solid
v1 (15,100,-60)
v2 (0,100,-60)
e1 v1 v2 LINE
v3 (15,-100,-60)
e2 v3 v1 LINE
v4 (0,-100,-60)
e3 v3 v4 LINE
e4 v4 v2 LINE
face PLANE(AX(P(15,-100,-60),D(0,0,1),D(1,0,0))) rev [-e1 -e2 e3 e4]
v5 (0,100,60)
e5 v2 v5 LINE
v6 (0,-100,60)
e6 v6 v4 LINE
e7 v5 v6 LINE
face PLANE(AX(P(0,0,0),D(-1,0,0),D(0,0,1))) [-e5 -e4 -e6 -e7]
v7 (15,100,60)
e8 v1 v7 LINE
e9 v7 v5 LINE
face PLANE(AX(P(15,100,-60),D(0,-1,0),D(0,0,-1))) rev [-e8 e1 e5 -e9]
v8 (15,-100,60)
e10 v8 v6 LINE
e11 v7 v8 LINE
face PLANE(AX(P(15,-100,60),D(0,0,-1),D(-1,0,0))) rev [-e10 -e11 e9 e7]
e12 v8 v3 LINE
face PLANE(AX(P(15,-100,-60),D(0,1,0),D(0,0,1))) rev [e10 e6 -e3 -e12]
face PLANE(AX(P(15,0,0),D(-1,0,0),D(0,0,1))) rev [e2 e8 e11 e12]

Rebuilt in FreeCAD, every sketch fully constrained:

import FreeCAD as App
import Part
import Sketcher

V = App.Vector
Q = App.Units.Quantity


def add_polygon(sketch, points):
    """Adds a closed chain of lines whose ends are joined by coincident constraints."""
    first, n = sketch.GeometryCount, len(points)
    for a, b in zip(points, points[1:] + points[:1]):
        sketch.addGeometry(Part.LineSegment(App.Vector(*a, 0), App.Vector(*b, 0)), False)
    for i in range(n):
        sketch.addConstraint(Sketcher.Constraint("Coincident", first + i, 2, first + (i + 1) % n, 1))

doc = App.newDocument("Part")
body = doc.addObject("PartDesign::Body", "Body")

sketch1 = doc.addObject("Sketcher::SketchObject", "Sketch")
body.addObject(sketch1)
sketch1.AttachmentSupport = (doc.YZ_Plane, [""])
sketch1.MapMode = "FlatFace"
add_polygon(sketch1, [(-100, 60), (-100, -60), (100, -60), (100, 60)])
sketch1.addConstraint([
    Sketcher.Constraint("Vertical", 0),
    Sketcher.Constraint("Horizontal", 1),
    Sketcher.Constraint("Vertical", 2),
    Sketcher.Constraint("Horizontal", 3),
    Sketcher.Constraint("Symmetric", 0, 2, 2, 2, -1, 1),
    Sketcher.Constraint("DistanceX", 1, 1, 1, 2, Q("200 mm")),
    Sketcher.Constraint("DistanceY", 0, 2, 0, 1, Q("120 mm")),
])
pad1 = doc.addObject("PartDesign::Pad", "Pad")
body.addObject(pad1)
pad1.Profile = sketch1
pad1.Length = 15

doc.recompute()
